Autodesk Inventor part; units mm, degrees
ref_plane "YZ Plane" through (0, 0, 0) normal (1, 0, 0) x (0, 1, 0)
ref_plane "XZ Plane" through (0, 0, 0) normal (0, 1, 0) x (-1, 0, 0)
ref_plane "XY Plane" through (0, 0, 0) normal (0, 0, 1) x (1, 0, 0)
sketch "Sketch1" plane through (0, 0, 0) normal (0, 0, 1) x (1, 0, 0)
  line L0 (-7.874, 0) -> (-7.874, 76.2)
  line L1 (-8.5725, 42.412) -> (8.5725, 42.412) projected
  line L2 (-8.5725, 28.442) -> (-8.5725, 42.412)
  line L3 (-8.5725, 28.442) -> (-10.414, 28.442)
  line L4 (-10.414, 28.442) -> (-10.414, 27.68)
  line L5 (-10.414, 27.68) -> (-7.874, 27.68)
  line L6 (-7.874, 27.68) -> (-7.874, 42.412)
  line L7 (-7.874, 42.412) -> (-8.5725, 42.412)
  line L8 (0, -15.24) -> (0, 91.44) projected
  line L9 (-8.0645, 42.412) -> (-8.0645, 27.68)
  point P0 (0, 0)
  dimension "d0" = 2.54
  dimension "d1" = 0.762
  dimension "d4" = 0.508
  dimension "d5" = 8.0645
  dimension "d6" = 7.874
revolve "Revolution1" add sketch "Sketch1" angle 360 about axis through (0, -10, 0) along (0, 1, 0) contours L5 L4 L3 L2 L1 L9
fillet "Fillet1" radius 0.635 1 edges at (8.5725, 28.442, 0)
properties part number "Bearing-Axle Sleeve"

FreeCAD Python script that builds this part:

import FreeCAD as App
import Part
import Sketcher
Q = App.Units.Quantity


def edges_at(feature, points):
    """Names of the edges that pass closest to the given points."""
    edges = feature.Shape.Edges
    near = lambda p: min(range(len(edges)), key=lambda i: edges[i].distToShape(Part.Vertex(*p))[0])
    return sorted({f"Edge{near(p) + 1}" for p in points})

doc = App.newDocument("Part")
body = doc.addObject("PartDesign::Body", "Body")

sketch1 = doc.addObject("Sketcher::SketchObject", "Sketch")
body.addObject(sketch1)
sketch1.AttachmentSupport = (doc.XY_Plane, [""])
sketch1.MapMode = "FlatFace"
sketch1.addGeometry(Part.LineSegment(App.Vector(-10.414, 27.68, 0), App.Vector(-8.0645, 27.68, 0)), False)
sketch1.addGeometry(Part.LineSegment(App.Vector(-8.0645, 27.68, 0), App.Vector(-8.0645, 42.412, 0)), False)
sketch1.addGeometry(Part.LineSegment(App.Vector(-8.0645, 42.412, 0), App.Vector(-8.5725, 42.412, 0)), False)
sketch1.addGeometry(Part.LineSegment(App.Vector(-8.5725, 42.412, 0), App.Vector(-8.5725, 28.442, 0)), False)
sketch1.addGeometry(Part.LineSegment(App.Vector(-8.5725, 28.442, 0), App.Vector(-10.414, 28.442, 0)), False)
sketch1.addGeometry(Part.LineSegment(App.Vector(-10.414, 28.442, 0), App.Vector(-10.414, 27.68, 0)), False)
sketch1.addConstraint(Sketcher.Constraint("Coincident", 0, 2, 1, 1))
sketch1.addConstraint(Sketcher.Constraint("Coincident", 1, 2, 2, 1))
sketch1.addConstraint(Sketcher.Constraint("Coincident", 2, 2, 3, 1))
sketch1.addConstraint(Sketcher.Constraint("Coincident", 3, 2, 4, 1))
sketch1.addConstraint(Sketcher.Constraint("Coincident", 4, 2, 5, 1))
sketch1.addConstraint(Sketcher.Constraint("Coincident", 5, 2, 0, 1))
sketch1.addConstraint(Sketcher.Constraint("Horizontal", 0))
sketch1.addConstraint(Sketcher.Constraint("Vertical", 1))
sketch1.addConstraint(Sketcher.Constraint("Horizontal", 2))
sketch1.addConstraint(Sketcher.Constraint("Vertical", 3))
sketch1.addConstraint(Sketcher.Constraint("Horizontal", 4))
sketch1.addConstraint(Sketcher.Constraint("Vertical", 5))
sketch1.addConstraint(Sketcher.Constraint("DistanceX", 2, 2, 2, 1, Q("0.02 in")))
sketch1.addConstraint(Sketcher.Constraint("DistanceY", 5, 2, 5, 1, Q("0.03 in")))
sketch1.addConstraint(Sketcher.Constraint("DistanceY", 1, 1, 1, 2, Q("0.58 in")))
sketch1.addConstraint(Sketcher.Constraint("DistanceX", 0, 2, -1, 1, Q("0.3175 in")))
sketch1.addConstraint(Sketcher.Constraint("DistanceX", 4, 2, -1, 1, Q("0.41 in")))
sketch1.addConstraint(Sketcher.Constraint("DistanceY", -1, 1, 0, 2, Q("27.68 mm")))
revolution = doc.addObject("PartDesign::Revolution", "Revolution")
body.addObject(revolution)
revolution.Profile = sketch1
revolution.ReferenceAxis = (sketch1, ["V_Axis"])
revolution.Angle = 360
doc.recompute()

fillet = doc.addObject("PartDesign::Fillet", "Fillet")
body.addObject(fillet)
fillet.Base = (revolution, edges_at(revolution, [(8.572, 28.442, 0)]))
fillet.Radius = Q("0.025 in")

doc.recompute()
